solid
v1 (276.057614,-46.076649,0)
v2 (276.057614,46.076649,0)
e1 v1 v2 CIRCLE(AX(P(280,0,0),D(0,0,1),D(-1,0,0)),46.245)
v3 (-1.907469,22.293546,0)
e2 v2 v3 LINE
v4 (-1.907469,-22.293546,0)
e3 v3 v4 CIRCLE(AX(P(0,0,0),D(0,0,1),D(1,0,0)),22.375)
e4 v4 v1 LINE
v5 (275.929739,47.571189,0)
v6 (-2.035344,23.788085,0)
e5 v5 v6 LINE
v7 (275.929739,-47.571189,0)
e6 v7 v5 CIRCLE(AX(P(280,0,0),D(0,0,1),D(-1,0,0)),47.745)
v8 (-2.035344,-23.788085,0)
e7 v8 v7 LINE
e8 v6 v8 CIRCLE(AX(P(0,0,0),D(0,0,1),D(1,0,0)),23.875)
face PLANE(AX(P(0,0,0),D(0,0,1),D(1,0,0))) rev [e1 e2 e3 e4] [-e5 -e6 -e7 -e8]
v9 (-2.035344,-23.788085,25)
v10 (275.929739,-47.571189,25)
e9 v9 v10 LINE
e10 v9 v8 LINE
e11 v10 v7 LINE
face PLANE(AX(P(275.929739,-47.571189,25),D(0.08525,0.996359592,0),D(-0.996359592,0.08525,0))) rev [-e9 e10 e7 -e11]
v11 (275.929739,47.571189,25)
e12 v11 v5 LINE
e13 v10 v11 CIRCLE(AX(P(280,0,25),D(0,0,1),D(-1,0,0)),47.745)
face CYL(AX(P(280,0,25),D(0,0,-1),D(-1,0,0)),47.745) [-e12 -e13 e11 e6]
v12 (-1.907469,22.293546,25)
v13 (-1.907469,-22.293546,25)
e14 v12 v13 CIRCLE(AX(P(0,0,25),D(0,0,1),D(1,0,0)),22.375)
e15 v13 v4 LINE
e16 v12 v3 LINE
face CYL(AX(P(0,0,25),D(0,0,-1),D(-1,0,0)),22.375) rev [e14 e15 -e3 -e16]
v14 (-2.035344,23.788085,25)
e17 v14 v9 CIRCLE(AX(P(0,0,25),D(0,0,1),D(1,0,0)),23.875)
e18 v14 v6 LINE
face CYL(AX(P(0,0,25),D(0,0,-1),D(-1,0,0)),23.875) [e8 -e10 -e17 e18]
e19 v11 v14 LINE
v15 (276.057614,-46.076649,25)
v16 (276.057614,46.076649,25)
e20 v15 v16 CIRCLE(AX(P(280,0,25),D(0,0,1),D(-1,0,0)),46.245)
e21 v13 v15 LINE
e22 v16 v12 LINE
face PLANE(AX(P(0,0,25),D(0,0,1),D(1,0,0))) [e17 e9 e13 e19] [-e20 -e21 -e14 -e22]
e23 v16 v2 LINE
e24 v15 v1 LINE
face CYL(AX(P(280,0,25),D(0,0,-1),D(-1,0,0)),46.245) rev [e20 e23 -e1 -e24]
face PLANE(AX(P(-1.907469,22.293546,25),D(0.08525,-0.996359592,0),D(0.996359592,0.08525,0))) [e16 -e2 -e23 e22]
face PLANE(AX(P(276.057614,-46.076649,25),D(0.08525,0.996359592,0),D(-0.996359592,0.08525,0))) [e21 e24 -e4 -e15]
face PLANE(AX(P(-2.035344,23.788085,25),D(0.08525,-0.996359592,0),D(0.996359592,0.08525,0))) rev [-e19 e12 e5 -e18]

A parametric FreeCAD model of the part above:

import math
import FreeCAD as App
import Part
import Sketcher

V = App.Vector

doc = App.newDocument("Part")
params = doc.addObject("Spreadsheet::Sheet", "Params")
for row, (alias, value) in enumerate([
    ("pad1_length", "25 mm"),
], start=1):
    params.set(f"A{row}", alias)
    params.set(f"B{row}", "=" + value)
    params.setAlias(f"B{row}", alias)

body = doc.addObject("PartDesign::Body", "Body")

# Sketch on XY plane
sketch1 = body.newObject("Sketcher::SketchObject", "Sketch")
sketch1.AttachmentSupport = (doc.getObject("XY_Plane"), [""])
sketch1.MapMode = "FlatFace"
sketch1.addGeometry([
    Part.LineSegment(V(276, 48, 0), V(-2, 24, 0)),  # 0
    Part.ArcOfCircle(Part.Circle(V(0, 0, 0), V(0, 0, 1), 24), math.radians(95), math.radians(265)),  # 1
    Part.LineSegment(V(-2, -24, 0), V(276, -48, 0)),  # 2
    Part.ArcOfCircle(Part.Circle(V(280, 0, 0), V(0, 0, 1), 48), math.radians(-95), math.radians(95)),  # 3
    Part.LineSegment(V(-2, 22, 0), V(276, 46, 0)),  # 4
    Part.ArcOfCircle(Part.Circle(V(280, 0, 0), V(0, 0, 1), 46), math.radians(-95), math.radians(95)),  # 5
    Part.LineSegment(V(276, -46, 0), V(-2, -22, 0)),  # 6
    Part.ArcOfCircle(Part.Circle(V(0, 0, 0), V(0, 0, 1), 22), math.radians(95), math.radians(265)),  # 7
], False)
sketch1.addConstraint([
    Sketcher.Constraint("Tangent", 0, 2, 1, 1),
    Sketcher.Constraint("Tangent", 1, 2, 2, 1),
    Sketcher.Constraint("Tangent", 2, 2, 3, 1),
    Sketcher.Constraint("Tangent", 3, 2, 0, 1),
    Sketcher.Constraint("Tangent", 4, 2, 5, 2),
    Sketcher.Constraint("Tangent", 5, 1, 6, 1),
    Sketcher.Constraint("Tangent", 6, 2, 7, 2),
    Sketcher.Constraint("Tangent", 7, 1, 4, 1),
    Sketcher.Constraint("Coincident", 1, 3, -1, 1),
    Sketcher.Constraint("Coincident", 7, 3, -1, 1),
    Sketcher.Constraint("Coincident", 5, 3, 3, 3),
    Sketcher.Constraint("PointOnObject", 3, 3, -1),
    Sketcher.Constraint("Parallel", 0, 4),
    Sketcher.Constraint("DistanceX", -1, 1, 3, 3, 280.0),
    Sketcher.Constraint("Radius", 1, 23.875),
    Sketcher.Constraint("Radius", 3, 47.745),
    Sketcher.Constraint("Radius", 5, 46.245),
])
pad1 = body.newObject("PartDesign::Pad", "Pad")
pad1.Profile = sketch1
pad1.setExpression("Length", "Params.pad1_length")

doc.recompute()
